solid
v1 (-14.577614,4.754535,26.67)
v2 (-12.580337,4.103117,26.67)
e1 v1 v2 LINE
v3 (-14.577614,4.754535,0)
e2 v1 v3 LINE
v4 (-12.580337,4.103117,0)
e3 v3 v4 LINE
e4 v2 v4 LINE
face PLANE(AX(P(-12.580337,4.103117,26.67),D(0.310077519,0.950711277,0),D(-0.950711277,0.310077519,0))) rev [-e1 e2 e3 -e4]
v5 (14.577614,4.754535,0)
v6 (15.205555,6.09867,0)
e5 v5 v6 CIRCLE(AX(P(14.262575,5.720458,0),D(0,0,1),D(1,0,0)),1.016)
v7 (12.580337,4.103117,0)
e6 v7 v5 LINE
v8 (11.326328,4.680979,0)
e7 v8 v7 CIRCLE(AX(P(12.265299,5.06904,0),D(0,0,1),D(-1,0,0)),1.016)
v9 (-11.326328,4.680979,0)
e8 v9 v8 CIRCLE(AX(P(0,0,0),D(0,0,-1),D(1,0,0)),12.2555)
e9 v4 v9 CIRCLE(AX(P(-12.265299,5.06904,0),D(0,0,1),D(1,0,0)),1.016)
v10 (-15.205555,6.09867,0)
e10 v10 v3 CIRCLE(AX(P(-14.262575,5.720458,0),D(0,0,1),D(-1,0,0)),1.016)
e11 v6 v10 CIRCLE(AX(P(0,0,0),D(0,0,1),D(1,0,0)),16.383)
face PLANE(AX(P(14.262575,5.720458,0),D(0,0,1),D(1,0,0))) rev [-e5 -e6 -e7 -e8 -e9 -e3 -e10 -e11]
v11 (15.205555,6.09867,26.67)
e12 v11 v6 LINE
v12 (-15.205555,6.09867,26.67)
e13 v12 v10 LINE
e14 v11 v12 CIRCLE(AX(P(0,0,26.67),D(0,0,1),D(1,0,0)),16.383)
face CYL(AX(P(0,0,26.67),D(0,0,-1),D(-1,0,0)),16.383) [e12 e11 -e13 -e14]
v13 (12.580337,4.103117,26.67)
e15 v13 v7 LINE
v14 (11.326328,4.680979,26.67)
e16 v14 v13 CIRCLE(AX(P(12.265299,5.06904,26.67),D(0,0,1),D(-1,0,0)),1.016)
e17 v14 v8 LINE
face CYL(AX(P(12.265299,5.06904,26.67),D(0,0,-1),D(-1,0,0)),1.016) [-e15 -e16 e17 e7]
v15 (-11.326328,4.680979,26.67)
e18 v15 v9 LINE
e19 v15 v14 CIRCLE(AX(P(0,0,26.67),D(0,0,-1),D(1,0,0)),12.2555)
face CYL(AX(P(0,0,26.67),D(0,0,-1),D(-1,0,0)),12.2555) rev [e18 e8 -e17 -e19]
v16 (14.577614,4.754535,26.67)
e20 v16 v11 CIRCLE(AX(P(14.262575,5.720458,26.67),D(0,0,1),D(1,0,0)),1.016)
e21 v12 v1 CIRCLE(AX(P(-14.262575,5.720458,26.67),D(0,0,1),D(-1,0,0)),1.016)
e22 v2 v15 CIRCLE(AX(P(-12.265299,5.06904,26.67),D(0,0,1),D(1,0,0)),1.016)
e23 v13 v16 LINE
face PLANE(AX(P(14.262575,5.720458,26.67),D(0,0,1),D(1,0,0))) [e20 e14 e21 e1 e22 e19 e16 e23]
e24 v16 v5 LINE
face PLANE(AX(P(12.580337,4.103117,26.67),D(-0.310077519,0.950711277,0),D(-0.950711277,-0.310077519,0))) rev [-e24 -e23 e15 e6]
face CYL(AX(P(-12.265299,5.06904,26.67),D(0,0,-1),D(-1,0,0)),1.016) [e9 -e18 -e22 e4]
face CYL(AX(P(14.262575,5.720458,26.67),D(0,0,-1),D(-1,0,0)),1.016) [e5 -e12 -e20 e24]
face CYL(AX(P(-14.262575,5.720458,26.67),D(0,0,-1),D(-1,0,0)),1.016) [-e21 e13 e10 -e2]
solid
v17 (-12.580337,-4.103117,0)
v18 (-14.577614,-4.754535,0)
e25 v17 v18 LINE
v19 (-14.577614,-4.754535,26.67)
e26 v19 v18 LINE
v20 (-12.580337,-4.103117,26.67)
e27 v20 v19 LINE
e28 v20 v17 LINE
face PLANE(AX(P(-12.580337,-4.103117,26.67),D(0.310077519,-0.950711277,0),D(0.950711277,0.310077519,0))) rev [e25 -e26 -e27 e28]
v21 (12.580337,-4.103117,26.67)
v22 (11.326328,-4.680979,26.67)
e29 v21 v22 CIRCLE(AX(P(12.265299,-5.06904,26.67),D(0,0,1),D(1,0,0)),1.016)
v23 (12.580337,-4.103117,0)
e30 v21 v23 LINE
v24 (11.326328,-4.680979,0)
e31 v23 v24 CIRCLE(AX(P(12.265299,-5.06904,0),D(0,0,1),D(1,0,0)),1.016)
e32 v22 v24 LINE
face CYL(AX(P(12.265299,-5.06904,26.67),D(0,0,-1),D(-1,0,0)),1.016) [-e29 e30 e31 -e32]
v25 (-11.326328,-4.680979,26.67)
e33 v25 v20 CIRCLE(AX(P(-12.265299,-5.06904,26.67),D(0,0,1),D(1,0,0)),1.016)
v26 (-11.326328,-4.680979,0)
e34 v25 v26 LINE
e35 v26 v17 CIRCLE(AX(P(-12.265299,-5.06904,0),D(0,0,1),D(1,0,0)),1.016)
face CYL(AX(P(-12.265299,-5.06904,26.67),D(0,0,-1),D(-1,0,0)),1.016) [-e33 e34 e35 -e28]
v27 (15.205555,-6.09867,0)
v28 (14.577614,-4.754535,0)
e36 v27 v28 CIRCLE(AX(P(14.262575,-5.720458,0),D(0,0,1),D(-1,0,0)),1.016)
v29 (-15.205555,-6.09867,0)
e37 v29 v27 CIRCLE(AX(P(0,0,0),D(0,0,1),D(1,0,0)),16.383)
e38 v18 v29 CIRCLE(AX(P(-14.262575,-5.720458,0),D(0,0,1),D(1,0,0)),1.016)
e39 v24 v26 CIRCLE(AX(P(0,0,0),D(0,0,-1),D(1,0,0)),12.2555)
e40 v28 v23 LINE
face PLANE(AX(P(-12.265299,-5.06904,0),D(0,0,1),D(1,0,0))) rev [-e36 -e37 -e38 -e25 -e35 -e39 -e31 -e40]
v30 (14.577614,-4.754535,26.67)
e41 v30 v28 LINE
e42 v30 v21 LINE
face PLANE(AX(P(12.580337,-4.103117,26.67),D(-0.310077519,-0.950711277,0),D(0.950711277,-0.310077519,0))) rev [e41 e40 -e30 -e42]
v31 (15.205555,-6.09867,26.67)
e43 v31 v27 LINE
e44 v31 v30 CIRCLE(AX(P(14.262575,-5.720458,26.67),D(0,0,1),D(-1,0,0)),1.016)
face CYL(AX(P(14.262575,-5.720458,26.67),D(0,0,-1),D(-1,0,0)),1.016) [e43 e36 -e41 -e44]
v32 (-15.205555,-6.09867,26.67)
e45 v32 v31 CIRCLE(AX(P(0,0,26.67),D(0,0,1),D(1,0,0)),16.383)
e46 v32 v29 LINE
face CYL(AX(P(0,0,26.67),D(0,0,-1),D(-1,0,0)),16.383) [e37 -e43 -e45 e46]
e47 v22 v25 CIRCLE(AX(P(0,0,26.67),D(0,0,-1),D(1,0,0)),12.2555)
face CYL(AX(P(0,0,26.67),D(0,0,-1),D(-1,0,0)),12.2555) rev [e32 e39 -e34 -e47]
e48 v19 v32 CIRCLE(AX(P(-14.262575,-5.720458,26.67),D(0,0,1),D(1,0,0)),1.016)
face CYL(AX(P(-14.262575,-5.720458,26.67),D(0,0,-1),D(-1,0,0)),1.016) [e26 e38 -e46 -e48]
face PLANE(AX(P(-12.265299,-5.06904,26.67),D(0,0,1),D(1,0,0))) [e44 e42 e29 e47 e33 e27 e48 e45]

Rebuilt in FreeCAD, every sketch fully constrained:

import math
import FreeCAD as App
import Part
import Sketcher
from FreeCAD import Vector
Q = App.Units.Quantity

doc = App.newDocument("Part")
body = doc.addObject("PartDesign::Body", "Body")

# Sketch on XY plane
sketch1 = doc.addObject("Sketcher::SketchObject", "Sketch")
body.addObject(sketch1)
sketch1.AttachmentSupport = (doc.XY_Plane, [""])
sketch1.MapMode = "FlatFace"
sketch1.addGeometry([
    Part.LineSegment(Vector(-14.6, 4.8, 0), Vector(-12.6, 4.1, 0)),  # 0
    Part.ArcOfCircle(Part.Circle(Vector(-12.3, 5.1, 0), Vector(0, 0, 1), 1), math.radians(-108), math.radians(-22)),  # 1
    Part.ArcOfCircle(Part.Circle(Vector(0, 0, 0), Vector(0, 0, 1), 12.3), math.radians(22), math.radians(158)),  # 2
    Part.ArcOfCircle(Part.Circle(Vector(12.3, 5.1, 0), Vector(0, 0, 1), 1), math.radians(-158), math.radians(-72)),  # 3
    Part.LineSegment(Vector(12.6, 4.1, 0), Vector(14.6, 4.8, 0)),  # 4
    Part.ArcOfCircle(Part.Circle(Vector(14.3, 5.7, 0), Vector(0, 0, 1), 1), math.radians(-72), math.radians(22)),  # 5
    Part.ArcOfCircle(Part.Circle(Vector(0, 0, 0), Vector(0, 0, 1), 16.4), math.radians(22), math.radians(158)),  # 6
    Part.ArcOfCircle(Part.Circle(Vector(-14.3, 5.7, 0), Vector(0, 0, 1), 1), math.radians(158), math.radians(252)),  # 7
], False)
sketch1.addConstraint([
    Sketcher.Constraint("Tangent", 0, 2, 1, 1),
    Sketcher.Constraint("Tangent", 1, 2, 2, 2),
    Sketcher.Constraint("Tangent", 2, 1, 3, 1),
    Sketcher.Constraint("Tangent", 3, 2, 4, 1),
    Sketcher.Constraint("Tangent", 4, 2, 5, 1),
    Sketcher.Constraint("Tangent", 5, 2, 6, 1),
    Sketcher.Constraint("Tangent", 6, 2, 7, 1),
    Sketcher.Constraint("Tangent", 7, 2, 0, 1),
    Sketcher.Constraint("Coincident", 2, 3, -1, 1),
    Sketcher.Constraint("Coincident", 6, 3, -1, 1),
    Sketcher.Constraint("Equal", 1, 3),
    Sketcher.Constraint("Equal", 3, 5),
    Sketcher.Constraint("Equal", 5, 7),
    Sketcher.Constraint("Symmetric", 0, 2, 3, 2, -2),
    Sketcher.Constraint("Radius", 1, Q("0.04 in")),
    Sketcher.Constraint("Radius", 6, Q("0.645 in")),
    Sketcher.Constraint("Radius", 2, Q("0.4825 in")),
    Sketcher.Constraint("DistanceX", 1, 3, -1, 1, 12.265299),
    Sketcher.Constraint("DistanceY", -1, 1, 5, 2, 6.09867),
])
pad1 = doc.addObject("PartDesign::Pad", "Pad")
body.addObject(pad1)
pad1.Profile = sketch1
pad1.Length = Q("1.05 in")
body2 = doc.addObject("PartDesign::Body", "Body001")

# Sketch on XY plane
sketch2 = doc.addObject("Sketcher::SketchObject", "Sketch001")
body2.addObject(sketch2)
sketch2.AttachmentSupport = (doc.getObject("XY_Plane001"), [""])
sketch2.MapMode = "FlatFace"
sketch2.addGeometry([
    Part.LineSegment(Vector(14.6, -4.8, 0), Vector(12.6, -4.1, 0)),  # 0
    Part.ArcOfCircle(Part.Circle(Vector(12.3, -5.1, 0), Vector(0, 0, 1), 1), math.radians(72), math.radians(158)),  # 1
    Part.ArcOfCircle(Part.Circle(Vector(0, 0, 0), Vector(0, 0, 1), 12.3), math.radians(-158), math.radians(-22)),  # 2
    Part.ArcOfCircle(Part.Circle(Vector(-12.3, -5.1, 0), Vector(0, 0, 1), 1), math.radians(22), math.radians(108)),  # 3
    Part.LineSegment(Vector(-12.6, -4.1, 0), Vector(-14.6, -4.8, 0)),  # 4
    Part.ArcOfCircle(Part.Circle(Vector(-14.3, -5.7, 0), Vector(0, 0, 1), 1), math.radians(108), math.radians(202)),  # 5
    Part.ArcOfCircle(Part.Circle(Vector(0, 0, 0), Vector(0, 0, 1), 16.4), math.radians(-158), math.radians(-22)),  # 6
    Part.ArcOfCircle(Part.Circle(Vector(14.3, -5.7, 0), Vector(0, 0, 1), 1), math.radians(-22), math.radians(72)),  # 7
], False)
sketch2.addConstraint([
    Sketcher.Constraint("Tangent", 0, 2, 1, 1),
    Sketcher.Constraint("Tangent", 1, 2, 2, 2),
    Sketcher.Constraint("Tangent", 2, 1, 3, 1),
    Sketcher.Constraint("Tangent", 3, 2, 4, 1),
    Sketcher.Constraint("Tangent", 4, 2, 5, 1),
    Sketcher.Constraint("Tangent", 5, 2, 6, 1),
    Sketcher.Constraint("Tangent", 6, 2, 7, 1),
    Sketcher.Constraint("Tangent", 7, 2, 0, 1),
    Sketcher.Constraint("Coincident", 2, 3, -1, 1),
    Sketcher.Constraint("Coincident", 6, 3, -1, 1),
    Sketcher.Constraint("Equal", 1, 3),
    Sketcher.Constraint("Equal", 3, 5),
    Sketcher.Constraint("Equal", 5, 7),
    Sketcher.Constraint("Symmetric", 0, 2, 3, 2, -2),
    Sketcher.Constraint("Radius", 1, Q("0.04 in")),
    Sketcher.Constraint("Radius", 6, Q("0.645 in")),
    Sketcher.Constraint("Radius", 2, Q("0.4825 in")),
    Sketcher.Constraint("DistanceX", -1, 1, 1, 3, 12.265299),
    Sketcher.Constraint("DistanceY", 5, 2, -1, 1, 6.09867),
])
pad2 = doc.addObject("PartDesign::Pad", "Pad001")
body2.addObject(pad2)
pad2.Profile = sketch2
pad2.Length = Q("1.05 in")

doc.recompute()
